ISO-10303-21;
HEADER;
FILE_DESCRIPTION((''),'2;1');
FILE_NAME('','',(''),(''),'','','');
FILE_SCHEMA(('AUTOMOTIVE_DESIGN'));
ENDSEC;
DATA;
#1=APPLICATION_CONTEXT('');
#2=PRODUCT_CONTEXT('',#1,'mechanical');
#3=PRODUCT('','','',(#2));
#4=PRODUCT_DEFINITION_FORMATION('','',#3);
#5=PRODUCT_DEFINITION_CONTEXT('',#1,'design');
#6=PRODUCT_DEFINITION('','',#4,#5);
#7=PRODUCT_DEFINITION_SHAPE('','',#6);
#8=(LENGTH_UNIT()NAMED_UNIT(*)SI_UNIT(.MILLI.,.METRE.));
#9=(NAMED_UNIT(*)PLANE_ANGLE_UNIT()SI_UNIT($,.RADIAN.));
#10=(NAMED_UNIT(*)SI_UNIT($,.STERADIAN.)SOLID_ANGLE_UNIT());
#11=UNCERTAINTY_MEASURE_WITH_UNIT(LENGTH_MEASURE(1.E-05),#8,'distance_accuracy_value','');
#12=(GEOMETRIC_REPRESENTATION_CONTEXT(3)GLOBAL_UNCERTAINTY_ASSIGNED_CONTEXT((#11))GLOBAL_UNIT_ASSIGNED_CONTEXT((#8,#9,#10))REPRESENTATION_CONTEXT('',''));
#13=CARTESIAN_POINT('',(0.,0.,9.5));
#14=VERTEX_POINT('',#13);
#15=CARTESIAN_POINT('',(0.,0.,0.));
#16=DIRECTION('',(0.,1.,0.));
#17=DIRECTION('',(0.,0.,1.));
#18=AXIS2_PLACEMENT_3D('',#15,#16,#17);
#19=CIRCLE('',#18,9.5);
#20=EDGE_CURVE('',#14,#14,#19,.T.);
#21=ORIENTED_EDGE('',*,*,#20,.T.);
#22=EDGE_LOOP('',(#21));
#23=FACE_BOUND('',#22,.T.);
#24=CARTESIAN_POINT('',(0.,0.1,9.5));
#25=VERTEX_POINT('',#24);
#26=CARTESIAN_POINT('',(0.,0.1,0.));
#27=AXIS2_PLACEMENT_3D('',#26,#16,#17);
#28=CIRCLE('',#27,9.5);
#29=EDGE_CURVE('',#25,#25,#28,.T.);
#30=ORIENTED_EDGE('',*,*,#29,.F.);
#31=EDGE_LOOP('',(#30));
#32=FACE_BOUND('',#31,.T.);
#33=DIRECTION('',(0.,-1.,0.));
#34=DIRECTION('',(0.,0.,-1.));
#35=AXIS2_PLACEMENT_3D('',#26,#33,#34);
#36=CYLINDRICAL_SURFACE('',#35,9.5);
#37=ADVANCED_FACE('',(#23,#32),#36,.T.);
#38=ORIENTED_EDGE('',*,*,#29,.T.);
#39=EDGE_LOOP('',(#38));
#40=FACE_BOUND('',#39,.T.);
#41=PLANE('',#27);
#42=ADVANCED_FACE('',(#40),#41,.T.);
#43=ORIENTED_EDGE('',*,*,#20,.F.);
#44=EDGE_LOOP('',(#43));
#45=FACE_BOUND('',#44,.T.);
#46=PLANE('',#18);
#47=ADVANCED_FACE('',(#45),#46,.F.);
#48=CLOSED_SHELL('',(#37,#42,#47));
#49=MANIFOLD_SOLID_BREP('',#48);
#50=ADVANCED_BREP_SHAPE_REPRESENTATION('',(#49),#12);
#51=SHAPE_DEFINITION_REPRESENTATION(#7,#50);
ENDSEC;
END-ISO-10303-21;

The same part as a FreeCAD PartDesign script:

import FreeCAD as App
import Part
import Sketcher
from FreeCAD import Vector
Q = App.Units.Quantity

doc = App.newDocument("Part")
body = doc.addObject("PartDesign::Body", "Body")

# Sketch on XZ plane
sketch1 = doc.addObject("Sketcher::SketchObject", "Sketch")
body.addObject(sketch1)
sketch1.AttachmentSupport = (doc.XZ_Plane, [""])
sketch1.MapMode = "FlatFace"
sketch1.addGeometry(Part.Circle(Vector(0, 0, 0), Vector(0, 0, 1), 10), False)
sketch1.addConstraint([
    Sketcher.Constraint("Coincident", 0, 3, -1, 1),
    Sketcher.Constraint("Diameter", 0, Q("19 mm")),
])
pad1 = doc.addObject("PartDesign::Pad", "Pad")
body.addObject(pad1)
pad1.Profile = sketch1
pad1.Length = 0.1
pad1.Reversed = True

doc.recompute()
